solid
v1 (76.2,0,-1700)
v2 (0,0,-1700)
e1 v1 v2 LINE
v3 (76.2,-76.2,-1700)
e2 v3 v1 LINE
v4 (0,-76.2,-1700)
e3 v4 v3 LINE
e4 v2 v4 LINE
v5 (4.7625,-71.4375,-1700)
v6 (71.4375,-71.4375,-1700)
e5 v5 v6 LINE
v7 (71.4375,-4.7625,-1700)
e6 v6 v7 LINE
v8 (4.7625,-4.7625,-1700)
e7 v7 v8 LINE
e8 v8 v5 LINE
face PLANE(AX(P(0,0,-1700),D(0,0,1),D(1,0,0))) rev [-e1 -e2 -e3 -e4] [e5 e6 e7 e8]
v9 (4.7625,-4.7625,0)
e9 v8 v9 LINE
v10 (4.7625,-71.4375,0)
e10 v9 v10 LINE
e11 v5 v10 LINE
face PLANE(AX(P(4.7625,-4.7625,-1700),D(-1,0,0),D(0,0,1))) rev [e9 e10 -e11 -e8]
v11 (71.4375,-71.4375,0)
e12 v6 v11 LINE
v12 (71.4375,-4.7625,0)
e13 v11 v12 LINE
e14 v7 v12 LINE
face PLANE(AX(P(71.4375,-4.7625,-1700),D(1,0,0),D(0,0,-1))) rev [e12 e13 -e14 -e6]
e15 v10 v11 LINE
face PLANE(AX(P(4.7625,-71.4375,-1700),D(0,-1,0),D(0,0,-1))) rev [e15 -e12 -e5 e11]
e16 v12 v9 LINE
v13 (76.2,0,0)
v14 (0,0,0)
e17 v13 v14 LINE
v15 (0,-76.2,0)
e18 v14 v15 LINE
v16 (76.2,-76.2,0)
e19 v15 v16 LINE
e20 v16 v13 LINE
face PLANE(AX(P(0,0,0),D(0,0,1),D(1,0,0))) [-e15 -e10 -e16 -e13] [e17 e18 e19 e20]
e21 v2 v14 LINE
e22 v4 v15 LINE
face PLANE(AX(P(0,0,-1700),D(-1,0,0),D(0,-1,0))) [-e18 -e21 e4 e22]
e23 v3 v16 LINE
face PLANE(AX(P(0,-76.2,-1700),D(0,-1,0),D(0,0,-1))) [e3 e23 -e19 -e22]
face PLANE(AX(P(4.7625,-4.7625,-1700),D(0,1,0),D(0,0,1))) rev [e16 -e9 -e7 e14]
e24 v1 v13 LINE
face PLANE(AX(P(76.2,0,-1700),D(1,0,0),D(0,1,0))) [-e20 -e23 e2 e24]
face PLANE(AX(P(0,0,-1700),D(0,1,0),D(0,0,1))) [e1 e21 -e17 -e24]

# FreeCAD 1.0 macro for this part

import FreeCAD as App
import Part
import Sketcher

V = App.Vector
Q = App.Units.Quantity


def add_polygon(sketch, points):
    """Adds a closed chain of lines whose ends are joined by coincident constraints."""
    first, n = sketch.GeometryCount, len(points)
    for a, b in zip(points, points[1:] + points[:1]):
        sketch.addGeometry(Part.LineSegment(App.Vector(*a, 0), App.Vector(*b, 0)), False)
    for i in range(n):
        sketch.addConstraint(Sketcher.Constraint("Coincident", first + i, 2, first + (i + 1) % n, 1))

doc = App.newDocument("Part")
body = doc.addObject("PartDesign::Body", "Body")

sketch1 = doc.addObject("Sketcher::SketchObject", "Sketch")
body.addObject(sketch1)
sketch1.AttachmentSupport = (doc.XY_Plane, [""])
sketch1.MapMode = "FlatFace"
add_polygon(sketch1, [(0, 0), (0, -76), (76, -76), (76, 0)])
add_polygon(sketch1, [(71, -71), (5, -71), (5, -5), (71, -5)])
sketch1.addConstraint([
    Sketcher.Constraint("Vertical", 0),
    Sketcher.Constraint("Horizontal", 1),
    Sketcher.Constraint("Vertical", 2),
    Sketcher.Constraint("Horizontal", 3),
    Sketcher.Constraint("Horizontal", 4),
    Sketcher.Constraint("Vertical", 5),
    Sketcher.Constraint("Horizontal", 6),
    Sketcher.Constraint("Vertical", 7),
    Sketcher.Constraint("Coincident", 3, 2, -1, 1),
    Sketcher.Constraint("Equal", 3, 0),
    Sketcher.Constraint("Equal", 6, 5),
    Sketcher.Constraint("DistanceX", 1, 1, 1, 2, Q("3 in")),
    Sketcher.Constraint("DistanceX", 4, 2, 4, 1, Q("2.625 in")),
    Sketcher.Constraint("DistanceX", -1, 1, 4, 2, Q("0.1875 in")),
    Sketcher.Constraint("DistanceY", 4, 2, -1, 1, Q("2.8125 in")),
])
pad1 = doc.addObject("PartDesign::Pad", "Pad")
body.addObject(pad1)
pad1.Profile = sketch1
pad1.Length = 1700
pad1.Reversed = True

doc.recompute()
